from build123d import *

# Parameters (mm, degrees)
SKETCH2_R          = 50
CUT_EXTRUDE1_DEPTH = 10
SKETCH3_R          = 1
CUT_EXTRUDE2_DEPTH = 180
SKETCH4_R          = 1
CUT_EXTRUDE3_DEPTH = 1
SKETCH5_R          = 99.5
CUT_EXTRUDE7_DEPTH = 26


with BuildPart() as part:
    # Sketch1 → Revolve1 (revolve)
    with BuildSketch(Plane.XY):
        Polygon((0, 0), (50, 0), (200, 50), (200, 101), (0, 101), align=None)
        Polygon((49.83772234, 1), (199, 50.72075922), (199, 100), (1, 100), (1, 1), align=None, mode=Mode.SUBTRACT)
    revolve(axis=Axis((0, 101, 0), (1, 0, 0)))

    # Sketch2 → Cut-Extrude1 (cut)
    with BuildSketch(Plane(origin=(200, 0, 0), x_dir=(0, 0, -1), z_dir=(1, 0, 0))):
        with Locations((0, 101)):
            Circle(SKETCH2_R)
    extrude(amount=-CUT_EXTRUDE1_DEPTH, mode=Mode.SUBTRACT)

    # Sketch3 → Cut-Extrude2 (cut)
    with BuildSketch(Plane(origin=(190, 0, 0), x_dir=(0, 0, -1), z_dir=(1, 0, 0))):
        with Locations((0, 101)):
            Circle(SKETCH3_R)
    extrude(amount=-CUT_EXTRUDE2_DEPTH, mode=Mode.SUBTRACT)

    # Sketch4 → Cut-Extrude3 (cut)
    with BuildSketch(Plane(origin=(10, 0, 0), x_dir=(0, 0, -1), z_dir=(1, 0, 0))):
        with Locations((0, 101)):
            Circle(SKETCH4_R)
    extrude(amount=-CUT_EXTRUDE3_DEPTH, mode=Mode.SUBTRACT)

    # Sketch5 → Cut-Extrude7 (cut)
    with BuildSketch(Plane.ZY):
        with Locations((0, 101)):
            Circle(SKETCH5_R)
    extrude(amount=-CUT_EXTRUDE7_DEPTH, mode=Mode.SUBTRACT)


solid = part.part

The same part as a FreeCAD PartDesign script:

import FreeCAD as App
import Part
import Sketcher
Q = App.Units.Quantity


def add_polygon(sketch, points):
    """Adds a closed chain of lines whose ends are joined by coincident constraints."""
    first, n = sketch.GeometryCount, len(points)
    for a, b in zip(points, points[1:] + points[:1]):
        sketch.addGeometry(Part.LineSegment(App.Vector(*a, 0), App.Vector(*b, 0)), False)
    for i in range(n):
        sketch.addConstraint(Sketcher.Constraint("Coincident", first + i, 2, first + (i + 1) % n, 1))

doc = App.newDocument("Part")
body = doc.addObject("PartDesign::Body", "Body")

# Sketch on XY plane
sketch1 = body.newObject("Sketcher::SketchObject", "Sketch")
sketch1.AttachmentSupport = (doc.getObject("XY_Plane"), [""])
sketch1.MapMode = "FlatFace"
add_polygon(sketch1, [(0, 0), (50, 0), (200, 50), (200, 101), (0, 101)])  # lines 0-4
add_polygon(sketch1, [(199, 51), (50, 1), (1, 1), (1, 100), (199, 100)])  # lines 5-9
sketch1.addGeometry(Part.LineSegment(App.Vector(0, 101, 0), App.Vector(200, 101, 0)), True)  # axis
sketch1.addConstraint([
    Sketcher.Constraint("Horizontal", 0),
    Sketcher.Constraint("Vertical", 2),
    Sketcher.Constraint("Horizontal", 3),
    Sketcher.Constraint("Vertical", 4),
    Sketcher.Constraint("Horizontal", 6),
    Sketcher.Constraint("Vertical", 7),
    Sketcher.Constraint("Horizontal", 8),
    Sketcher.Constraint("Vertical", 9),
    Sketcher.Constraint("Horizontal", 10),
    Sketcher.Constraint("Coincident", 4, 2, -1, 1),
    Sketcher.Constraint("Coincident", 10, 1, 3, 2),
    Sketcher.Constraint("Parallel", 1, 5),
    Sketcher.Constraint("Vertical", 1, 2, 10, 2),
    Sketcher.Constraint("DistanceX", 0, 1, 0, 2, Q("50 mm")),
    Sketcher.Constraint("DistanceX", 3, 2, 3, 1, Q("200 mm")),
    Sketcher.Constraint("DistanceX", 8, 1, 8, 2, Q("198 mm")),
    Sketcher.Constraint("DistanceY", 2, 1, 2, 2, Q("51 mm")),
    Sketcher.Constraint("DistanceY", 4, 2, 4, 1, Q("101 mm")),
    Sketcher.Constraint("DistanceY", 7, 1, 7, 2, Q("99 mm")),
    Sketcher.Constraint("DistanceY", -1, 1, 5, 2, Q("1 mm")),
    Sketcher.Constraint("DistanceX", -1, 1, 6, 2, Q("1 mm")),
    Sketcher.Constraint("DistanceY", 9, 2, 9, 1, Q("49.279241 mm")),
])
revolution = body.newObject("PartDesign::Revolution", "Revolution")
revolution.Profile = sketch1
revolution.ReferenceAxis = (sketch1, ["Axis0"])
revolution.Angle = 360

# Sketch on YZ plane
sketch2 = body.newObject("Sketcher::SketchObject", "Sketch001")
sketch2.AttachmentSupport = (doc.getObject("YZ_Plane"), [""])
sketch2.MapMode = "FlatFace"
sketch2.AttachmentOffset = App.Placement(App.Vector(0, 0, 200), App.Rotation())
sketch2.addGeometry(Part.Circle(App.Vector(101, 0, 0), App.Vector(0, 0, 1), 50), False)
sketch2.addConstraint([
    Sketcher.Constraint("PointOnObject", 0, 3, -1),
    Sketcher.Constraint("Diameter", 0, Q("100 mm")),
    Sketcher.Constraint("DistanceX", -1, 1, 0, 3, Q("101 mm")),
])
pocket1 = body.newObject("PartDesign::Pocket", "Pocket")
pocket1.Profile = sketch2
pocket1.Length = 10

# Sketch on YZ plane
sketch3 = body.newObject("Sketcher::SketchObject", "Sketch002")
sketch3.AttachmentSupport = (doc.getObject("YZ_Plane"), [""])
sketch3.MapMode = "FlatFace"
sketch3.AttachmentOffset = App.Placement(App.Vector(0, 0, 190), App.Rotation())
sketch3.addGeometry(Part.Circle(App.Vector(101, 0, 0), App.Vector(0, 0, 1), 1), False)
sketch3.addConstraint([
    Sketcher.Constraint("PointOnObject", 0, 3, -1),
    Sketcher.Constraint("Diameter", 0, Q("2 mm")),
    Sketcher.Constraint("DistanceX", -1, 1, 0, 3, Q("101 mm")),
])
pocket2 = body.newObject("PartDesign::Pocket", "Pocket001")
pocket2.Profile = sketch3
pocket2.Length = 180

# Sketch on YZ plane
sketch4 = body.newObject("Sketcher::SketchObject", "Sketch003")
sketch4.AttachmentSupport = (doc.getObject("YZ_Plane"), [""])
sketch4.MapMode = "FlatFace"
sketch4.AttachmentOffset = App.Placement(App.Vector(0, 0, 10), App.Rotation())
sketch4.addGeometry(Part.Circle(App.Vector(101, 0, 0), App.Vector(0, 0, 1), 1), False)
sketch4.addConstraint([
    Sketcher.Constraint("PointOnObject", 0, 3, -1),
    Sketcher.Constraint("Diameter", 0, Q("2 mm")),
    Sketcher.Constraint("DistanceX", -1, 1, 0, 3, Q("101 mm")),
])
pocket3 = body.newObject("PartDesign::Pocket", "Pocket002")
pocket3.Profile = sketch4
pocket3.Length = 1

# Sketch on YZ plane
sketch5 = body.newObject("Sketcher::SketchObject", "Sketch004")
sketch5.AttachmentSupport = (doc.getObject("YZ_Plane"), [""])
sketch5.MapMode = "FlatFace"
sketch5.addGeometry(Part.Circle(App.Vector(101, 0, 0), App.Vector(0, 0, 1), 100), False)
sketch5.addConstraint([
    Sketcher.Constraint("PointOnObject", 0, 3, -1),
    Sketcher.Constraint("Diameter", 0, Q("199 mm")),
    Sketcher.Constraint("DistanceX", -1, 1, 0, 3, Q("101 mm")),
])
pocket4 = body.newObject("PartDesign::Pocket", "Pocket003")
pocket4.Profile = sketch5
pocket4.Length = 26
pocket4.Reversed = True

doc.recompute()
